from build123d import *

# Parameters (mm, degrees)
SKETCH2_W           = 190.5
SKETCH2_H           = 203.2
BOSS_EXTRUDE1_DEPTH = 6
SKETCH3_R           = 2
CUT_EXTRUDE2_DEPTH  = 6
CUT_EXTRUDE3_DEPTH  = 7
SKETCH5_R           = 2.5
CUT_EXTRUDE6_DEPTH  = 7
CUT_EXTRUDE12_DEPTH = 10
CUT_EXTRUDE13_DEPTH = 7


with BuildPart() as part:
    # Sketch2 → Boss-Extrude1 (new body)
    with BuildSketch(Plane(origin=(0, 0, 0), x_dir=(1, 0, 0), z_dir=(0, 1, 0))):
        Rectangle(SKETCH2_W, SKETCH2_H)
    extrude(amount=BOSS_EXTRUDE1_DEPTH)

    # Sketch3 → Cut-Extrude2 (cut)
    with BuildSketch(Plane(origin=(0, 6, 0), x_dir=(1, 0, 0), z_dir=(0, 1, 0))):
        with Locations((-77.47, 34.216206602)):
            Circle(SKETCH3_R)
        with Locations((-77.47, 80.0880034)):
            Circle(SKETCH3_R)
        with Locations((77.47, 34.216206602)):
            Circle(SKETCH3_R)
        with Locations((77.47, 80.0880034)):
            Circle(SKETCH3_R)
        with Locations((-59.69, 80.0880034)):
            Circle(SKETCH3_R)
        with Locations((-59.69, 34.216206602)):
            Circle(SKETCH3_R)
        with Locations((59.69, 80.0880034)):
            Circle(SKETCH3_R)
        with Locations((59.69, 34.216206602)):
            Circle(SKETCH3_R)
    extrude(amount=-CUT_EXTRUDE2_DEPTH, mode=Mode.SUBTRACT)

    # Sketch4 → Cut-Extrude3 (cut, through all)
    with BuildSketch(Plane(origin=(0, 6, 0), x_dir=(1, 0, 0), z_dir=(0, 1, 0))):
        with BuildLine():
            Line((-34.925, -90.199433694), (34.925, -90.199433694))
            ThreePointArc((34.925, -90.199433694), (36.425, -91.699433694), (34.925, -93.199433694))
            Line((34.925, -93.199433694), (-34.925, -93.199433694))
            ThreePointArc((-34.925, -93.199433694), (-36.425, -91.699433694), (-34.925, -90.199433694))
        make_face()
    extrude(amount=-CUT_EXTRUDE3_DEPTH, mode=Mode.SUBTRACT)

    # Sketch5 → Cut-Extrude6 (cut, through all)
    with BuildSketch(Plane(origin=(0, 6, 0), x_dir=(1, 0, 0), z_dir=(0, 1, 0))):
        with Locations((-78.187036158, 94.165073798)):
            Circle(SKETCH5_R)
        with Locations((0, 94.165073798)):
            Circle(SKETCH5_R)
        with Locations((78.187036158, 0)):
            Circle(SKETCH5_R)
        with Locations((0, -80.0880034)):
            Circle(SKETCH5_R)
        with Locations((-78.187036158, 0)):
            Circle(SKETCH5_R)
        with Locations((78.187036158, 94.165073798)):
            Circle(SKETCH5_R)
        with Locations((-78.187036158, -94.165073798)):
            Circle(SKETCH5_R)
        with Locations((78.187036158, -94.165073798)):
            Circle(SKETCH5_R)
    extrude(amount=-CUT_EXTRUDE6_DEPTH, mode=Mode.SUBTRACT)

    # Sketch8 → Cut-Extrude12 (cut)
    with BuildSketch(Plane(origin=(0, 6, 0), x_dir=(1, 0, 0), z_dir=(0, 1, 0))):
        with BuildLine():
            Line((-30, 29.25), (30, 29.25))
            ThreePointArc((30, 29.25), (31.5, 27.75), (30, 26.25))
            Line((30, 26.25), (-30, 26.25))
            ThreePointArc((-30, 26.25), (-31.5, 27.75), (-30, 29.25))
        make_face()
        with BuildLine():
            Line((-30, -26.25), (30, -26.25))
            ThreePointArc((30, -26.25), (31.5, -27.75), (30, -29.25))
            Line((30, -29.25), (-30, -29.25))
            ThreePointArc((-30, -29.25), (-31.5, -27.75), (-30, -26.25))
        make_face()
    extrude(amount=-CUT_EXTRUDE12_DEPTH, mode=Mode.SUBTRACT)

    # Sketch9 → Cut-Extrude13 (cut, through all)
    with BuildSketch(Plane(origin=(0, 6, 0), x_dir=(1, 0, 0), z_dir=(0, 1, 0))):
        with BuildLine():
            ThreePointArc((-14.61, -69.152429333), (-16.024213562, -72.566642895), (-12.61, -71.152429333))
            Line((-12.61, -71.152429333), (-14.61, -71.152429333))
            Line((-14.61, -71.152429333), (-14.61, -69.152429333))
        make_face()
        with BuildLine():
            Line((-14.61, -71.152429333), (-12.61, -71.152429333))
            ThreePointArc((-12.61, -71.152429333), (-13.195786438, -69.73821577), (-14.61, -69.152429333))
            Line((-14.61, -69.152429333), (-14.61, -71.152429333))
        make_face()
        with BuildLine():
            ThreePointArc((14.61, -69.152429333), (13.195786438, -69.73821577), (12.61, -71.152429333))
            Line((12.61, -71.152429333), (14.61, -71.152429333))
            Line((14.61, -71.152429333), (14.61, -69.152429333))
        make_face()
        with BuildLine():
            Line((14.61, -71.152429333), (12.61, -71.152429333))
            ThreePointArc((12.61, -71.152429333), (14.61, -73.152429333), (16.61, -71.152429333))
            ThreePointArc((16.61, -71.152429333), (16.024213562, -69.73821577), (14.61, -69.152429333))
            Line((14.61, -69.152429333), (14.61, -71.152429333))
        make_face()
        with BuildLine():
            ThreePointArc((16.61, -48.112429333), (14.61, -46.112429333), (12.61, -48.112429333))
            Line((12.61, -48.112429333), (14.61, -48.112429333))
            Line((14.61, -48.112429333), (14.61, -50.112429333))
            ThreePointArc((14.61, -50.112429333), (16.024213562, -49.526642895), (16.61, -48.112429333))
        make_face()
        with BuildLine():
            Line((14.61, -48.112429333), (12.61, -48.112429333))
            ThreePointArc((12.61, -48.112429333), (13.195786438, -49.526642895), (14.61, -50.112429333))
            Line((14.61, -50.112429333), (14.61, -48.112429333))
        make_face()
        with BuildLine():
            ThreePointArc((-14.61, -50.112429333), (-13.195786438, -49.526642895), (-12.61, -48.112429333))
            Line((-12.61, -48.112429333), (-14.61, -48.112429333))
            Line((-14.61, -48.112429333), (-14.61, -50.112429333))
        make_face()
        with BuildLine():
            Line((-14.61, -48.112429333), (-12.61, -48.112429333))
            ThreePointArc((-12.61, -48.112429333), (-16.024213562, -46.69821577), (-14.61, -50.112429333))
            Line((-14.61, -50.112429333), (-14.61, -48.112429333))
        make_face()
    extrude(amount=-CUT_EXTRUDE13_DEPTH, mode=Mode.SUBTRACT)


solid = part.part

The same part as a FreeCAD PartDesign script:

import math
import FreeCAD as App
import Part
import Sketcher
Q = App.Units.Quantity

doc = App.newDocument("Part")
body = doc.addObject("PartDesign::Body", "Body")

# Sketch on XZ plane
sketch1 = body.newObject("Sketcher::SketchObject", "Sketch")
sketch1.AttachmentSupport = (doc.getObject("XZ_Plane"), [""])
sketch1.MapMode = "FlatFace"
sketch1.addGeometry([
    Part.LineSegment(App.Vector(-95, -102, 0), App.Vector(-95, 102, 0)),
    Part.LineSegment(App.Vector(-95, 102, 0), App.Vector(95, 102, 0)),
    Part.LineSegment(App.Vector(95, 102, 0), App.Vector(95, -102, 0)),
    Part.LineSegment(App.Vector(95, -102, 0), App.Vector(-95, -102, 0)),
], False)
sketch1.addConstraint([
    Sketcher.Constraint("Coincident", 0, 2, 1, 1),
    Sketcher.Constraint("Coincident", 1, 2, 2, 1),
    Sketcher.Constraint("Coincident", 2, 2, 3, 1),
    Sketcher.Constraint("Coincident", 3, 2, 0, 1),
    Sketcher.Constraint("Vertical", 0),
    Sketcher.Constraint("Horizontal", 1),
    Sketcher.Constraint("Vertical", 2),
    Sketcher.Constraint("Horizontal", 3),
    Sketcher.Constraint("Symmetric", 0, 2, 2, 2, -1, 1),
    Sketcher.Constraint("DistanceX", 1, 1, 1, 2, Q("190.5 mm")),
    Sketcher.Constraint("DistanceY", 0, 1, 0, 2, Q("203.2 mm")),
])
pad1 = body.newObject("PartDesign::Pad", "Pad")
pad1.Profile = sketch1
pad1.Length = 6
pad1.Reversed = True

# Sketch on XZ plane
sketch2 = body.newObject("Sketcher::SketchObject", "Sketch001")
sketch2.AttachmentSupport = (doc.getObject("XZ_Plane"), [""])
sketch2.MapMode = "FlatFace"
sketch2.AttachmentOffset = App.Placement(App.Vector(0, 0, -6), App.Rotation())
sketch2.addGeometry([
    Part.Circle(App.Vector(-77.5, -34.2, 0), App.Vector(0, 0, 1), 2),  # 0
    Part.Circle(App.Vector(-77.5, -80.1, 0), App.Vector(0, 0, 1), 2),  # 1
    Part.Circle(App.Vector(77.5, -34.2, 0), App.Vector(0, 0, 1), 2),  # 2
    Part.Circle(App.Vector(77.5, -80.1, 0), App.Vector(0, 0, 1), 2),  # 3
    Part.Circle(App.Vector(-59.7, -80.1, 0), App.Vector(0, 0, 1), 2),  # 4
    Part.Circle(App.Vector(-59.7, -34.2, 0), App.Vector(0, 0, 1), 2),  # 5
    Part.Circle(App.Vector(59.7, -80.1, 0), App.Vector(0, 0, 1), 2),  # 6
    Part.Circle(App.Vector(59.7, -34.2, 0), App.Vector(0, 0, 1), 2),  # 7
], False)
sketch2.addConstraint([
    Sketcher.Constraint("Equal", 0, 1),
    Sketcher.Constraint("Equal", 1, 2),
    Sketcher.Constraint("Equal", 2, 3),
    Sketcher.Constraint("Equal", 3, 4),
    Sketcher.Constraint("Equal", 4, 5),
    Sketcher.Constraint("Equal", 5, 6),
    Sketcher.Constraint("Equal", 6, 7),
    Sketcher.Constraint("Symmetric", 0, 3, 2, 3, -2),
    Sketcher.Constraint("Symmetric", 1, 3, 3, 3, -2),
    Sketcher.Constraint("Symmetric", 4, 3, 6, 3, -2),
    Sketcher.Constraint("Symmetric", 5, 3, 7, 3, -2),
    Sketcher.Constraint("Horizontal", 3, 3, 4, 3),
    Sketcher.Constraint("Horizontal", 2, 3, 5, 3),
    Sketcher.Constraint("Vertical", 0, 3, 1, 3),
    Sketcher.Constraint("Vertical", 4, 3, 5, 3),
    Sketcher.Constraint("Diameter", 0, Q("4 mm")),
    Sketcher.Constraint("DistanceX", 0, 3, -1, 1, Q("77.47 mm")),
    Sketcher.Constraint("DistanceX", 4, 3, -1, 1, Q("59.69 mm")),
    Sketcher.Constraint("DistanceY", 0, 3, -1, 1, Q("34.216207 mm")),
    Sketcher.Constraint("DistanceY", 1, 3, -1, 1, Q("80.088003 mm")),
])
pocket1 = body.newObject("PartDesign::Pocket", "Pocket")
pocket1.Profile = sketch2
pocket1.Length = 6
pocket1.Reversed = True

# Sketch on XZ plane
sketch3 = body.newObject("Sketcher::SketchObject", "Sketch002")
sketch3.AttachmentSupport = (doc.getObject("XZ_Plane"), [""])
sketch3.MapMode = "FlatFace"
sketch3.AttachmentOffset = App.Placement(App.Vector(0, 0, -6), App.Rotation())
sketch3.addGeometry([
    Part.LineSegment(App.Vector(34.9, 90.2, 0), App.Vector(-34.9, 90.2, 0)),
    Part.ArcOfCircle(Part.Circle(App.Vector(-34.9, 91.7, 0), App.Vector(0, 0, 1), 1.5), math.radians(90), math.radians(270)),
    Part.LineSegment(App.Vector(-34.9, 93.2, 0), App.Vector(34.9, 93.2, 0)),
    Part.ArcOfCircle(Part.Circle(App.Vector(34.9, 91.7, 0), App.Vector(0, 0, 1), 1.5), math.radians(-90), math.radians(90)),
], False)
sketch3.addConstraint([
    Sketcher.Constraint("Tangent", 0, 2, 1, 2),
    Sketcher.Constraint("Tangent", 1, 1, 2, 1),
    Sketcher.Constraint("Tangent", 2, 2, 3, 2),
    Sketcher.Constraint("Tangent", 3, 1, 0, 1),
    Sketcher.Constraint("Horizontal", 0),
    Sketcher.Constraint("Horizontal", 2),
    Sketcher.Constraint("Radius", 1, Q("1.5 mm")),
    Sketcher.Constraint("DistanceX", 0, 2, 0, 1, Q("69.85 mm")),
    Sketcher.Constraint("DistanceX", 1, 3, -1, 1, Q("34.925 mm")),
    Sketcher.Constraint("DistanceY", -1, 1, 1, 3, Q("91.699434 mm")),
])
pocket2 = body.newObject("PartDesign::Pocket", "Pocket001")
pocket2.Profile = sketch3
pocket2.Type = "ThroughAll"
pocket2.Reversed = True

# Sketch on XZ plane
sketch4 = body.newObject("Sketcher::SketchObject", "Sketch003")
sketch4.AttachmentSupport = (doc.getObject("XZ_Plane"), [""])
sketch4.MapMode = "FlatFace"
sketch4.AttachmentOffset = App.Placement(App.Vector(0, 0, -6), App.Rotation())
sketch4.addGeometry([
    Part.Circle(App.Vector(-78.2, -94.2, 0), App.Vector(0, 0, 1), 2.5),  # 0
    Part.Circle(App.Vector(0, -94.2, 0), App.Vector(0, 0, 1), 2.5),  # 1
    Part.Circle(App.Vector(78.2, 0, 0), App.Vector(0, 0, 1), 2.5),  # 2
    Part.Circle(App.Vector(0, 80.1, 0), App.Vector(0, 0, 1), 2.5),  # 3
    Part.Circle(App.Vector(-78.2, 0, 0), App.Vector(0, 0, 1), 2.5),  # 4
    Part.Circle(App.Vector(78.2, -94.2, 0), App.Vector(0, 0, 1), 2.5),  # 5
    Part.Circle(App.Vector(-78.2, 94.2, 0), App.Vector(0, 0, 1), 2.5),  # 6
    Part.Circle(App.Vector(78.2, 94.2, 0), App.Vector(0, 0, 1), 2.5),  # 7
], False)
sketch4.addConstraint([
    Sketcher.Constraint("Equal", 0, 1),
    Sketcher.Constraint("Equal", 1, 2),
    Sketcher.Constraint("Equal", 2, 3),
    Sketcher.Constraint("Equal", 3, 4),
    Sketcher.Constraint("Equal", 4, 5),
    Sketcher.Constraint("Equal", 5, 6),
    Sketcher.Constraint("Equal", 6, 7),
    Sketcher.Constraint("Symmetric", 2, 3, 4, 3, -1, 1),
    Sketcher.Constraint("Symmetric", 5, 3, 6, 3, -1, 1),
    Sketcher.Constraint("Symmetric", 0, 3, 7, 3, -1, 1),
    Sketcher.Constraint("Symmetric", 0, 3, 5, 3, -2),
    Sketcher.Constraint("PointOnObject", 1, 3, -2),
    Sketcher.Constraint("PointOnObject", 2, 3, -1),
    Sketcher.Constraint("PointOnObject", 3, 3, -2),
    Sketcher.Constraint("Horizontal", 0, 3, 1, 3),
    Sketcher.Constraint("Vertical", 0, 3, 4, 3),
    Sketcher.Constraint("Diameter", 0, Q("5 mm")),
    Sketcher.Constraint("DistanceY", 3, 3, 6, 3, Q("14.07707 mm")),
    Sketcher.Constraint("DistanceX", 0, 3, -1, 1, Q("78.187036 mm")),
    Sketcher.Constraint("DistanceY", 0, 3, -1, 1, Q("94.165074 mm")),
])
pocket3 = body.newObject("PartDesign::Pocket", "Pocket002")
pocket3.Profile = sketch4
pocket3.Type = "ThroughAll"
pocket3.Reversed = True

# Sketch on XZ plane
sketch5 = body.newObject("Sketcher::SketchObject", "Sketch004")
sketch5.AttachmentSupport = (doc.getObject("XZ_Plane"), [""])
sketch5.MapMode = "FlatFace"
sketch5.AttachmentOffset = App.Placement(App.Vector(0, 0, -6), App.Rotation())
sketch5.addGeometry([
    Part.LineSegment(App.Vector(30, -29.2, 0), App.Vector(-30, -29.2, 0)),  # 0
    Part.ArcOfCircle(Part.Circle(App.Vector(-30, -27.8, 0), App.Vector(0, 0, 1), 1.5), math.radians(90), math.radians(270)),  # 1
    Part.LineSegment(App.Vector(-30, -26.2, 0), App.Vector(30, -26.2, 0)),  # 2
    Part.ArcOfCircle(Part.Circle(App.Vector(30, -27.8, 0), App.Vector(0, 0, 1), 1.5), math.radians(-90), math.radians(90)),  # 3
    Part.LineSegment(App.Vector(30, 26.2, 0), App.Vector(-30, 26.2, 0)),  # 4
    Part.ArcOfCircle(Part.Circle(App.Vector(-30, 27.8, 0), App.Vector(0, 0, 1), 1.5), math.radians(90), math.radians(270)),  # 5
    Part.LineSegment(App.Vector(-30, 29.2, 0), App.Vector(30, 29.2, 0)),  # 6
    Part.ArcOfCircle(Part.Circle(App.Vector(30, 27.8, 0), App.Vector(0, 0, 1), 1.5), math.radians(-90), math.radians(90)),  # 7
], False)
sketch5.addConstraint([
    Sketcher.Constraint("Tangent", 0, 2, 1, 2),
    Sketcher.Constraint("Tangent", 1, 1, 2, 1),
    Sketcher.Constraint("Tangent", 2, 2, 3, 2),
    Sketcher.Constraint("Tangent", 3, 1, 0, 1),
    Sketcher.Constraint("Tangent", 4, 2, 5, 2),
    Sketcher.Constraint("Tangent", 5, 1, 6, 1),
    Sketcher.Constraint("Tangent", 6, 2, 7, 2),
    Sketcher.Constraint("Tangent", 7, 1, 4, 1),
    Sketcher.Constraint("Horizontal", 0),
    Sketcher.Constraint("Horizontal", 2),
    Sketcher.Constraint("Horizontal", 4),
    Sketcher.Constraint("Horizontal", 6),
    Sketcher.Constraint("Equal", 3, 5),
    Sketcher.Constraint("Symmetric", 3, 3, 5, 3, -1, 1),
    Sketcher.Constraint("Vertical", 1, 3, 5, 3),
    Sketcher.Constraint("Vertical", 3, 3, 7, 3),
    Sketcher.Constraint("Radius", 1, Q("1.5 mm")),
    Sketcher.Constraint("DistanceX", 0, 2, 0, 1, Q("60 mm")),
    Sketcher.Constraint("DistanceY", 0, 2, 5, 3, Q("57 mm")),
])
pocket4 = body.newObject("PartDesign::Pocket", "Pocket003")
pocket4.Profile = sketch5
pocket4.Length = 10
pocket4.Reversed = True

# Sketch on XZ plane
sketch6 = body.newObject("Sketcher::SketchObject", "Sketch005")
sketch6.AttachmentSupport = (doc.getObject("XZ_Plane"), [""])
sketch6.MapMode = "FlatFace"
sketch6.AttachmentOffset = App.Placement(App.Vector(0, 0, -6), App.Rotation())
sketch6.addGeometry([
    Part.ArcOfCircle(Part.Circle(App.Vector(-14.6, 71.2, 0), App.Vector(0, 0, 1), 2), math.radians(0), math.radians(270)),  # 0
    Part.ArcOfCircle(Part.Circle(App.Vector(-14.6, 71.2, 0), App.Vector(0, 0, 1), 2), math.radians(-90), math.radians(0)),  # 1
    Part.ArcOfCircle(Part.Circle(App.Vector(14.6, 71.2, 0), App.Vector(0, 0, 1), 2), math.radians(180), math.radians(270)),  # 2
    Part.ArcOfCircle(Part.Circle(App.Vector(14.6, 71.2, 0), App.Vector(0, 0, 1), 2), math.radians(0), math.radians(180)),  # 3
    Part.ArcOfCircle(Part.Circle(App.Vector(14.6, 71.2, 0), App.Vector(0, 0, 1), 2), math.radians(-90), math.radians(0)),  # 4
    Part.ArcOfCircle(Part.Circle(App.Vector(14.6, 48.1, 0), App.Vector(0, 0, 1), 2), math.radians(180), math.radians(360)),  # 5
    Part.ArcOfCircle(Part.Circle(App.Vector(14.6, 48.1, 0), App.Vector(0, 0, 1), 2), math.radians(90), math.radians(180)),  # 6
    Part.ArcOfCircle(Part.Circle(App.Vector(14.6, 48.1, 0), App.Vector(0, 0, 1), 2), math.radians(0), math.radians(90)),  # 7
    Part.ArcOfCircle(Part.Circle(App.Vector(-14.6, 48.1, 0), App.Vector(0, 0, 1), 2), math.radians(0), math.radians(90)),  # 8
    Part.ArcOfCircle(Part.Circle(App.Vector(-14.6, 48.1, 0), App.Vector(0, 0, 1), 2), math.radians(90), math.radians(360)),  # 9
], False)
sketch6.addConstraint([
    Sketcher.Constraint("Tangent", 0, 1, 1, 2),
    Sketcher.Constraint("Coincident", 1, 1, 0, 2),
    Sketcher.Constraint("Tangent", 2, 1, 3, 2),
    Sketcher.Constraint("Tangent", 3, 1, 4, 2),
    Sketcher.Constraint("Tangent", 4, 1, 2, 2),
    Sketcher.Constraint("Tangent", 5, 1, 6, 2),
    Sketcher.Constraint("Tangent", 6, 1, 7, 2),
    Sketcher.Constraint("Tangent", 7, 1, 5, 2),
    Sketcher.Constraint("Tangent", 8, 1, 9, 2),
    Sketcher.Constraint("Coincident", 9, 1, 8, 2),
    Sketcher.Constraint("Equal", 1, 2),
    Sketcher.Constraint("Equal", 4, 5),
    Sketcher.Constraint("Equal", 7, 8),
    Sketcher.Constraint("Symmetric", 0, 3, 2, 3, -2),
    Sketcher.Constraint("Symmetric", 5, 3, 8, 3, -2),
    Sketcher.Constraint("Horizontal", 4, 3, 0, 1),
    Sketcher.Constraint("Horizontal", 0, 1, 2, 1),
    Sketcher.Constraint("Horizontal", 2, 1, 3, 1),
    Sketcher.Constraint("Horizontal", 9, 3, 5, 1),
    Sketcher.Constraint("Horizontal", 5, 1, 7, 1),
    Sketcher.Constraint("Horizontal", 7, 1, 8, 1),
    Sketcher.Constraint("Vertical", 4, 3, 5, 3),
    Sketcher.Constraint("Vertical", 9, 3, 1, 1),
    Sketcher.Constraint("Vertical", 7, 3, 4, 1),
    Sketcher.Constraint("Vertical", 4, 1, 6, 1),
    Sketcher.Constraint("Vertical", 1, 1, 9, 1),
    Sketcher.Constraint("Radius", 0, Q("2 mm")),
    Sketcher.Constraint("DistanceX", 0, 3, -1, 1, Q("14.61 mm")),
    Sketcher.Constraint("DistanceY", 5, 3, 2, 3, Q("23.04 mm")),
    Sketcher.Constraint("DistanceY", -1, 1, 0, 3, Q("71.152429 mm")),
])
pocket5 = body.newObject("PartDesign::Pocket", "Pocket004")
pocket5.Profile = sketch6
pocket5.Type = "ThroughAll"
pocket5.Reversed = True

doc.recompute()
